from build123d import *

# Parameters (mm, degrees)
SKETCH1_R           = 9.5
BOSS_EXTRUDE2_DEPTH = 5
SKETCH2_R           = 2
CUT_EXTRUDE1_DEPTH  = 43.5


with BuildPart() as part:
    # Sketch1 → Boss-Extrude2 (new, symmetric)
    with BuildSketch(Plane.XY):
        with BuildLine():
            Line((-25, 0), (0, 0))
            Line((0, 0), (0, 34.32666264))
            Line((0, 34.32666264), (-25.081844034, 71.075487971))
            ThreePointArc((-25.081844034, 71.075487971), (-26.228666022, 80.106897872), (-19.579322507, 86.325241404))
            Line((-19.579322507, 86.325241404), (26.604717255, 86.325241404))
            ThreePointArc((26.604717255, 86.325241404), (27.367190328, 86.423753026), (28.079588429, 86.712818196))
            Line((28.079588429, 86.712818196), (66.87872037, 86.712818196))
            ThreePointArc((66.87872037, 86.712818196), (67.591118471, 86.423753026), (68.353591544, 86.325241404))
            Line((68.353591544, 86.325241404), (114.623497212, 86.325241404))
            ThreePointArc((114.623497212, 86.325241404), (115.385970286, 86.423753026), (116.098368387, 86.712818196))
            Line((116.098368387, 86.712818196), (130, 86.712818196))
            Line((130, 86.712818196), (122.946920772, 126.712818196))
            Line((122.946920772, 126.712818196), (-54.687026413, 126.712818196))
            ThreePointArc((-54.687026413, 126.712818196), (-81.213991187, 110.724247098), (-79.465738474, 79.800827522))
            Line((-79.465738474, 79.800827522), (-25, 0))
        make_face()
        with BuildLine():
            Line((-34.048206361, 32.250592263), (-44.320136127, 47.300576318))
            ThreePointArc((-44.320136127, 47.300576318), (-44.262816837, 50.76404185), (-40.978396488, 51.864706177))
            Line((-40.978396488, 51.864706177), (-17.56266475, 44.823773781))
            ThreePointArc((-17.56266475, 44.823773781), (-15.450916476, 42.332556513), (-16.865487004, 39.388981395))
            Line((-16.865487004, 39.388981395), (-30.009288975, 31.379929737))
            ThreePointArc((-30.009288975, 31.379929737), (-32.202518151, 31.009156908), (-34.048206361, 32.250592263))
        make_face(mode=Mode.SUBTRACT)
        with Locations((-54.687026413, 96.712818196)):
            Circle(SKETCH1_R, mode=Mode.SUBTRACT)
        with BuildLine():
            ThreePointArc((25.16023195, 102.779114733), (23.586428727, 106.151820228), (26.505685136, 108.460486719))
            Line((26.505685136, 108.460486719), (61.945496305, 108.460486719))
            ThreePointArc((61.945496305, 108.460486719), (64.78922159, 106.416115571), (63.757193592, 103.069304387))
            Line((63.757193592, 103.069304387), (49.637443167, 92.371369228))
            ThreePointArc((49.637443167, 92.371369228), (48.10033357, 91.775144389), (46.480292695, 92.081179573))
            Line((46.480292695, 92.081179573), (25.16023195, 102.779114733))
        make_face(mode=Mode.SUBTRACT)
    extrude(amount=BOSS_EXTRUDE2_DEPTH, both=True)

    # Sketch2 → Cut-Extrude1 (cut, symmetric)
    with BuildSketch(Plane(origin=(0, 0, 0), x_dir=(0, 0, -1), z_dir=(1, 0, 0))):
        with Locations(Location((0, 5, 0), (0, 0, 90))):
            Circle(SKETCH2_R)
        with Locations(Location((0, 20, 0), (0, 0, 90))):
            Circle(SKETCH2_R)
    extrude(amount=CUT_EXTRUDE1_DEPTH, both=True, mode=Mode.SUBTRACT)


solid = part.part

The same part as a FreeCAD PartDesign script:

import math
import FreeCAD as App
import Part
import Sketcher

V = App.Vector
Q = App.Units.Quantity

doc = App.newDocument("Part")
params = doc.addObject("Spreadsheet::Sheet", "Params")
for row, (alias, value) in enumerate([
    ("sketch1_diameter", "19 mm"),
    ("sketch1_radius", "10 mm"),
    ("sketch1_radius2", "3 mm"),
    ("sketch1_radius3", "30 mm"),
    ("sketch1_width", "25 mm"),
    ("pad1_length", "10 mm"),
    ("sketch2_diameter", "4 mm"),
    ("pocket1_length", "87 mm"),
], start=1):
    params.set(f"A{row}", alias)
    params.set(f"B{row}", "=" + value)
    params.setAlias(f"B{row}", alias)

body = doc.addObject("PartDesign::Body", "Body")

# Sketch on XY plane
sketch1 = body.newObject("Sketcher::SketchObject", "Sketch")
sketch1.AttachmentSupport = (doc.getObject("XY_Plane"), [""])
sketch1.MapMode = "FlatFace"
sketch1.addGeometry(Part.LineSegment(V(-25, 0, 0), V(0, 0, 0)), False)
sketch1.addGeometry(Part.LineSegment(V(0, 0, 0), V(0, 34.3, 0)), False)
sketch1.addGeometry(Part.LineSegment(V(0, 34.3, 0), V(-25.1, 71.1, 0)), False)
sketch1.addGeometry(Part.ArcOfCircle(Part.Circle(V(-16.8, 76.7, 0), V(0, 0, 1), 10), math.radians(106), math.radians(214)), False)
sketch1.addGeometry(Part.LineSegment(V(-19.6, 86.3, 0), V(26.6, 86.3, 0)), False)
sketch1.addGeometry(Part.ArcOfCircle(Part.Circle(V(26.6, 89.3, 0), V(0, 0, 1), 3), math.radians(-90), math.radians(-61)), False)
sketch1.addGeometry(Part.LineSegment(V(28.1, 86.7, 0), V(66.9, 86.7, 0)), False)
sketch1.addGeometry(Part.ArcOfCircle(Part.Circle(V(68.4, 89.3, 0), V(0, 0, 1), 3), math.radians(-119), math.radians(-90)), False)
sketch1.addGeometry(Part.LineSegment(V(68.4, 86.3, 0), V(114.6, 86.3, 0)), False)
sketch1.addGeometry(Part.ArcOfCircle(Part.Circle(V(114.6, 89.3, 0), V(0, 0, 1), 3), math.radians(-90), math.radians(-61)), False)
sketch1.addGeometry(Part.LineSegment(V(116.1, 86.7, 0), V(130, 86.7, 0)), False)
sketch1.addGeometry(Part.LineSegment(V(130, 86.7, 0), V(122.9, 126.7, 0)), False)
sketch1.addGeometry(Part.LineSegment(V(122.9, 126.7, 0), V(-54.7, 126.7, 0)), False)
sketch1.addGeometry(Part.ArcOfCircle(Part.Circle(V(-54.7, 96.7, 0), V(0, 0, 1), 30), math.radians(90), math.radians(214)), False)
sketch1.addGeometry(Part.LineSegment(V(-79.5, 79.8, 0), V(-25, 0, 0)), False)
sketch1.addGeometry(Part.ArcOfCircle(Part.Circle(V(-31.6, 33.9, 0), V(0, 0, 1), 3), math.radians(-146), math.radians(-59)), False)
sketch1.addGeometry(Part.LineSegment(V(-34, 32.3, 0), V(-44.3, 47.3, 0)), False)
sketch1.addGeometry(Part.ArcOfCircle(Part.Circle(V(-41.8, 49, 0), V(0, 0, 1), 3), math.radians(73), math.radians(214)), False)
sketch1.addGeometry(Part.LineSegment(V(-41, 51.9, 0), V(-17.6, 44.8, 0)), False)
sketch1.addGeometry(Part.ArcOfCircle(Part.Circle(V(-18.4, 42, 0), V(0, 0, 1), 3), math.radians(-59), math.radians(73)), False)
sketch1.addGeometry(Part.LineSegment(V(-16.9, 39.4, 0), V(-30, 31.4, 0)), False)
sketch1.addGeometry(Part.Circle(V(-54.7, 96.7, 0), V(0, 0, 1), 9.5), False)
sketch1.addGeometry(Part.LineSegment(V(46.5, 92.1, 0), V(25.2, 102.8, 0)), False)
sketch1.addGeometry(Part.ArcOfCircle(Part.Circle(V(26.5, 105.5, 0), V(0, 0, 1), 3), math.radians(90), math.radians(243)), False)
sketch1.addGeometry(Part.LineSegment(V(26.5, 108.5, 0), V(61.9, 108.5, 0)), False)
sketch1.addGeometry(Part.ArcOfCircle(Part.Circle(V(61.9, 105.5, 0), V(0, 0, 1), 3), math.radians(-53), math.radians(90)), False)
sketch1.addGeometry(Part.LineSegment(V(63.8, 103.1, 0), V(49.6, 92.4, 0)), False)
sketch1.addGeometry(Part.ArcOfCircle(Part.Circle(V(47.8, 94.8, 0), V(0, 0, 1), 3), math.radians(-117), math.radians(-53)), False)
sketch1.addConstraint(Sketcher.Constraint("Coincident", 0, 2, 1, 1))
sketch1.addConstraint(Sketcher.Constraint("Coincident", 1, 2, 2, 1))
sketch1.addConstraint(Sketcher.Constraint("Tangent", 2, 2, 3, 2))
sketch1.addConstraint(Sketcher.Constraint("Coincident", 3, 1, 4, 1))
sketch1.addConstraint(Sketcher.Constraint("Tangent", 4, 2, 5, 1))
sketch1.addConstraint(Sketcher.Constraint("Coincident", 5, 2, 6, 1))
sketch1.addConstraint(Sketcher.Constraint("Coincident", 6, 2, 7, 1))
sketch1.addConstraint(Sketcher.Constraint("Tangent", 7, 2, 8, 1))
sketch1.addConstraint(Sketcher.Constraint("Tangent", 8, 2, 9, 1))
sketch1.addConstraint(Sketcher.Constraint("Coincident", 9, 2, 10, 1))
sketch1.addConstraint(Sketcher.Constraint("Coincident", 10, 2, 11, 1))
sketch1.addConstraint(Sketcher.Constraint("Coincident", 11, 2, 12, 1))
sketch1.addConstraint(Sketcher.Constraint("Tangent", 12, 2, 13, 1))
sketch1.addConstraint(Sketcher.Constraint("Tangent", 13, 2, 14, 1))
sketch1.addConstraint(Sketcher.Constraint("Coincident", 14, 2, 0, 1))
sketch1.addConstraint(Sketcher.Constraint("Tangent", 15, 1, 16, 1))
sketch1.addConstraint(Sketcher.Constraint("Tangent", 16, 2, 17, 2))
sketch1.addConstraint(Sketcher.Constraint("Tangent", 17, 1, 18, 1))
sketch1.addConstraint(Sketcher.Constraint("Tangent", 18, 2, 19, 2))
sketch1.addConstraint(Sketcher.Constraint("Tangent", 19, 1, 20, 1))
sketch1.addConstraint(Sketcher.Constraint("Tangent", 20, 2, 15, 2))
sketch1.addConstraint(Sketcher.Constraint("Tangent", 22, 2, 23, 2))
sketch1.addConstraint(Sketcher.Constraint("Tangent", 23, 1, 24, 1))
sketch1.addConstraint(Sketcher.Constraint("Tangent", 24, 2, 25, 2))
sketch1.addConstraint(Sketcher.Constraint("Tangent", 25, 1, 26, 1))
sketch1.addConstraint(Sketcher.Constraint("Tangent", 26, 2, 27, 2))
sketch1.addConstraint(Sketcher.Constraint("Tangent", 27, 1, 22, 1))
sketch1.addConstraint(Sketcher.Constraint("Horizontal", 0))
sketch1.addConstraint(Sketcher.Constraint("Vertical", 1))
sketch1.addConstraint(Sketcher.Constraint("Horizontal", 4))
sketch1.addConstraint(Sketcher.Constraint("Horizontal", 6))
sketch1.addConstraint(Sketcher.Constraint("Horizontal", 8))
sketch1.addConstraint(Sketcher.Constraint("Horizontal", 10))
sketch1.addConstraint(Sketcher.Constraint("Horizontal", 12))
sketch1.addConstraint(Sketcher.Constraint("Horizontal", 24))
sketch1.addConstraint(Sketcher.Constraint("Coincident", 0, 2, -1, 1))
sketch1.addConstraint(Sketcher.Constraint("Coincident", 21, 3, 13, 3))
sketch1.addConstraint(Sketcher.Constraint("Equal", 5, 7))
sketch1.addConstraint(Sketcher.Constraint("Equal", 7, 9))
sketch1.addConstraint(Sketcher.Constraint("Equal", 9, 15))
sketch1.addConstraint(Sketcher.Constraint("Equal", 15, 17))
sketch1.addConstraint(Sketcher.Constraint("Equal", 17, 19))
sketch1.addConstraint(Sketcher.Constraint("Equal", 19, 23))
sketch1.addConstraint(Sketcher.Constraint("Equal", 23, 25))
sketch1.addConstraint(Sketcher.Constraint("Equal", 25, 27))
sketch1.addConstraint(Sketcher.Constraint("Parallel", 2, 14))
sketch1.addConstraint(Sketcher.Constraint("Parallel", 14, 16))
sketch1.addConstraint(Sketcher.Constraint("Horizontal", 5, 3, 7, 3))
sketch1.addConstraint(Sketcher.Constraint("Horizontal", 6, 2, 9, 2))
sketch1.addConstraint(Sketcher.Constraint("Diameter", 21, 19.0))
sketch1.addConstraint(Sketcher.Constraint("Radius", 3, 10.0))
sketch1.addConstraint(Sketcher.Constraint("Radius", 5, 3.0))
sketch1.addConstraint(Sketcher.Constraint("Radius", 13, 30.0))
sketch1.addConstraint(Sketcher.Constraint("DistanceX", 0, 1, 0, 2, 25.0))
sketch1.addConstraint(Sketcher.Constraint("Angle", 11, Q("100 deg")))
sketch1.addConstraint(Sketcher.Constraint("DistanceX", -1, 1, 10, 2, 130.0))
sketch1.addConstraint(Sketcher.Constraint("DistanceY", 3, 3, 13, 3, 20.0))
sketch1.addConstraint(Sketcher.Constraint("DistanceY", 9, 2, 11, 2, 40.0))
sketch1.addConstraint(Sketcher.Constraint("DistanceX", 25, 3, 9, 3, 52.678001))
sketch1.addConstraint(Sketcher.Constraint("Distance", 20, 15.3917))
sketch1.addConstraint(Sketcher.Constraint("DistanceX", 4, 1, 4, 2, 46.18404))
sketch1.addConstraint(Sketcher.Constraint("DistanceX", 6, 1, 6, 2, 38.799132))
sketch1.addConstraint(Sketcher.Constraint("DistanceX", 10, 1, 10, 2, 13.901632))
sketch1.addConstraint(Sketcher.Constraint("DistanceX", 24, 1, 24, 2, 35.439811))
sketch1.addConstraint(Sketcher.Constraint("DistanceX", 15, 3, 19, 3, 13.143802))
sketch1.addConstraint(Sketcher.Constraint("DistanceY", 19, 3, 5, 3, 47.374398))
sketch1.addConstraint(Sketcher.Constraint("DistanceY", 15, 1, 15, 3, 1.691199))
sketch1.addConstraint(Sketcher.Constraint("DistanceX", 16, 2, 15, 3, 12.749801))
sketch1.addConstraint(Sketcher.Constraint("Distance", 22, 23.853528))
sketch1.addConstraint(Sketcher.Constraint("DistanceX", 8, 1, 8, 2, 46.269906))
sketch1.addConstraint(Sketcher.Constraint("DistanceX", 12, 2, 12, 1, 177.633947))
sketch1.addConstraint(Sketcher.Constraint("DistanceY", 1, 1, 1, 2, 34.326663))
sketch1.addConstraint(Sketcher.Constraint("DistanceY", -1, 1, 27, 3, 94.762552))
sketch1.addConstraint(Sketcher.Constraint("DistanceX", 20, 2, -1, 1, 30.009289))
sketch1.addConstraint(Sketcher.Constraint("DistanceX", -1, 1, 22, 2, 25.160232))
sketch1.setExpression("Constraints[49]", "Params.sketch1_diameter")
sketch1.setExpression("Constraints[50]", "Params.sketch1_radius")
sketch1.setExpression("Constraints[51]", "Params.sketch1_radius2")
sketch1.setExpression("Constraints[52]", "Params.sketch1_radius3")
sketch1.setExpression("Constraints[53]", "Params.sketch1_width")
pad1 = body.newObject("PartDesign::Pad", "Pad")
pad1.Profile = sketch1
pad1.setExpression("Length", "Params.pad1_length")
pad1.Midplane = True

# Sketch on YZ plane
sketch2 = body.newObject("Sketcher::SketchObject", "Sketch001")
sketch2.AttachmentSupport = (doc.getObject("YZ_Plane"), [""])
sketch2.MapMode = "FlatFace"
sketch2.addGeometry(Part.Circle(V(5, 0, 0), V(0, 0, 1), 2), False)
sketch2.addGeometry(Part.Circle(V(20, 0, 0), V(0, 0, 1), 2), False)
sketch2.addConstraint(Sketcher.Constraint("Equal", 0, 1))
sketch2.addConstraint(Sketcher.Constraint("PointOnObject", 0, 3, -1))
sketch2.addConstraint(Sketcher.Constraint("PointOnObject", 1, 3, -1))
sketch2.addConstraint(Sketcher.Constraint("Diameter", 0, 4.0))
sketch2.addConstraint(Sketcher.Constraint("DistanceX", -1, 1, 0, 3, 5.0))
sketch2.addConstraint(Sketcher.Constraint("DistanceX", -1, 1, 1, 3, 20.0))
sketch2.setExpression("Constraints[3]", "Params.sketch2_diameter")
pocket1 = body.newObject("PartDesign::Pocket", "Pocket")
pocket1.Profile = sketch2
pocket1.setExpression("Length", "Params.pocket1_length")
pocket1.Midplane = True

doc.recompute()
